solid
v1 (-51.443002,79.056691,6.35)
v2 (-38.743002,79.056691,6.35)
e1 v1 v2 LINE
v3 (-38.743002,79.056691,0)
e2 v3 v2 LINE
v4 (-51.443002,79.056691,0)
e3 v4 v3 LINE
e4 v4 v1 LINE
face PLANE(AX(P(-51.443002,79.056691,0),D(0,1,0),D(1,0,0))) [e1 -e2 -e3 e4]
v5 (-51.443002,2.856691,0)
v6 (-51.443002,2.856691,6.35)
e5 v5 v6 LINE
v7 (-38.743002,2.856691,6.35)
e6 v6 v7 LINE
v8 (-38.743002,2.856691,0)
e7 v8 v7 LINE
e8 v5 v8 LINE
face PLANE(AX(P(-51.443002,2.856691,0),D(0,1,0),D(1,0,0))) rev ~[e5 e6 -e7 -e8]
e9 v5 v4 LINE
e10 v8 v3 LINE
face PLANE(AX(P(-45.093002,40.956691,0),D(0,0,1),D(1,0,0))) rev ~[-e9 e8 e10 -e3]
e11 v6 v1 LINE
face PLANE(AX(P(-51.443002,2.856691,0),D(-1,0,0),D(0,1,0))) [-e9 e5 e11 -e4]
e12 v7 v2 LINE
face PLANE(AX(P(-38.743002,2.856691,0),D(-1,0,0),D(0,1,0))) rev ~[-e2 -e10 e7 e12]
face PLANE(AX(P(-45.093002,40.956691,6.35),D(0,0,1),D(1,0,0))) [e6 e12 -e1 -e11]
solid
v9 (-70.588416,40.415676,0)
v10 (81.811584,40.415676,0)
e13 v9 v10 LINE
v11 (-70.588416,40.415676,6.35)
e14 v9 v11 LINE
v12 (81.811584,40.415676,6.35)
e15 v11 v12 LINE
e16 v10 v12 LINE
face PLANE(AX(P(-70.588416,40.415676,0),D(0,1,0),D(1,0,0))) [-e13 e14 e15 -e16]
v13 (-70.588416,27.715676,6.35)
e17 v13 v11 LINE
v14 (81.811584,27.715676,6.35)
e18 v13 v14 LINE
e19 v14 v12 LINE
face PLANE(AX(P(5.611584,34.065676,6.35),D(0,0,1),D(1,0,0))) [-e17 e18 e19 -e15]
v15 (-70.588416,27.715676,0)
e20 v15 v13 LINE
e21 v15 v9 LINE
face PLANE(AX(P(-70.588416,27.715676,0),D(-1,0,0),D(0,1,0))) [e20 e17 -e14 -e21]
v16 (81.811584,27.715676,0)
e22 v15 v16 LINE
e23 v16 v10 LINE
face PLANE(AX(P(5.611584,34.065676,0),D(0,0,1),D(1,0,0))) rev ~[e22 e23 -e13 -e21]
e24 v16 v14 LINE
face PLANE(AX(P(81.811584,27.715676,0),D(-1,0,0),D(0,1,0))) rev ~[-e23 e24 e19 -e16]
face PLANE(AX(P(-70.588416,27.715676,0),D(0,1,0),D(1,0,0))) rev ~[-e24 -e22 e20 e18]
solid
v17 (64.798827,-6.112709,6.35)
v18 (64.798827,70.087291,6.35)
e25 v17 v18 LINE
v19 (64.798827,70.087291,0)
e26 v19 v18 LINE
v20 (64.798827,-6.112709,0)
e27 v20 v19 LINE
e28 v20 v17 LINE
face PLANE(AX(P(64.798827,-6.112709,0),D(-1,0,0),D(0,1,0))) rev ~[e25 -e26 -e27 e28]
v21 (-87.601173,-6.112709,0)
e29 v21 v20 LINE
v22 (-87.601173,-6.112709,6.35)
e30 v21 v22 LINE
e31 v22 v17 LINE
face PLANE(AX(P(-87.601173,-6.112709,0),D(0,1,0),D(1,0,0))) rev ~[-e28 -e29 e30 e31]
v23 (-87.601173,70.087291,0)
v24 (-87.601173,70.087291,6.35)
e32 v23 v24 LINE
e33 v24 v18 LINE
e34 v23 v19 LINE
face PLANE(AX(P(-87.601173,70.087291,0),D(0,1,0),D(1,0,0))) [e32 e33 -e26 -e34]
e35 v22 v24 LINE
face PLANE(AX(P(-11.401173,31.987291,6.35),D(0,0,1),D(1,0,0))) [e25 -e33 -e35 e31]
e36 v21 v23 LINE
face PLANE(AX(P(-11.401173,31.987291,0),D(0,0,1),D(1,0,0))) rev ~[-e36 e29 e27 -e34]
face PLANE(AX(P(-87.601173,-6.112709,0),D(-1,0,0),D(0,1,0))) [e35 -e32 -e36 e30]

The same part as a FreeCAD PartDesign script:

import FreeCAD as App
import Part
import Sketcher
from FreeCAD import Vector
Q = App.Units.Quantity

doc = App.newDocument("Part")
params = doc.addObject("Spreadsheet::Sheet", "Params")
for row, (alias, value) in enumerate([
    ("sketch1_width", "6 in"),
    ("sketch1_height", "3 in"),
    ("pad1_length", "0.25 in"),
    ("sketch2_width", "6 in"),
    ("sketch2_height", "0.5 in"),
    ("pad2_length", "0.25 in"),
    ("sketch3_height", "3 in"),
    ("sketch3_width", "0.5 in"),
    ("pad3_length", "0.25 in"),
], start=1):
    params.set(f"A{row}", alias)
    params.set(f"B{row}", "=" + value)
    params.setAlias(f"B{row}", alias)

body = doc.addObject("PartDesign::Body", "Body")

# Sketch on XY plane
sketch1 = body.newObject("Sketcher::SketchObject", "Sketch")
sketch1.AttachmentSupport = (doc.getObject("XY_Plane"), [""])
sketch1.MapMode = "FlatFace"
sketch1.addGeometry(Part.LineSegment(Vector(-88, 70, 0), Vector(-88, -6, 0)), False)
sketch1.addGeometry(Part.LineSegment(Vector(-88, -6, 0), Vector(65, -6, 0)), False)
sketch1.addGeometry(Part.LineSegment(Vector(65, -6, 0), Vector(65, 70, 0)), False)
sketch1.addGeometry(Part.LineSegment(Vector(65, 70, 0), Vector(-88, 70, 0)), False)
sketch1.addConstraint(Sketcher.Constraint("Coincident", 0, 2, 1, 1))
sketch1.addConstraint(Sketcher.Constraint("Coincident", 1, 2, 2, 1))
sketch1.addConstraint(Sketcher.Constraint("Coincident", 2, 2, 3, 1))
sketch1.addConstraint(Sketcher.Constraint("Coincident", 3, 2, 0, 1))
sketch1.addConstraint(Sketcher.Constraint("Vertical", 0))
sketch1.addConstraint(Sketcher.Constraint("Horizontal", 1))
sketch1.addConstraint(Sketcher.Constraint("Vertical", 2))
sketch1.addConstraint(Sketcher.Constraint("Horizontal", 3))
sketch1.addConstraint(Sketcher.Constraint("DistanceX", 1, 1, 1, 2, Q("6 in")))
sketch1.addConstraint(Sketcher.Constraint("DistanceY", 0, 2, 0, 1, Q("3 in")))
sketch1.addConstraint(Sketcher.Constraint("DistanceY", 0, 2, -1, 1, Q("6.112709 mm")))
sketch1.addConstraint(Sketcher.Constraint("DistanceX", 0, 2, -1, 1, Q("87.601173 mm")))
sketch1.setExpression("Constraints[8]", "Params.sketch1_width")
sketch1.setExpression("Constraints[9]", "Params.sketch1_height")
pad1 = body.newObject("PartDesign::Pad", "Pad")
pad1.Profile = sketch1
pad1.setExpression("Length", "Params.pad1_length")
body2 = doc.addObject("PartDesign::Body", "Body001")

# Sketch on XY plane
sketch2 = body2.newObject("Sketcher::SketchObject", "Sketch001")
sketch2.AttachmentSupport = (doc.getObject("XY_Plane001"), [""])
sketch2.MapMode = "FlatFace"
sketch2.addGeometry(Part.LineSegment(Vector(-71, 40, 0), Vector(-71, 28, 0)), False)
sketch2.addGeometry(Part.LineSegment(Vector(-71, 28, 0), Vector(82, 28, 0)), False)
sketch2.addGeometry(Part.LineSegment(Vector(82, 28, 0), Vector(82, 40, 0)), False)
sketch2.addGeometry(Part.LineSegment(Vector(82, 40, 0), Vector(-71, 40, 0)), False)
sketch2.addConstraint(Sketcher.Constraint("Coincident", 0, 2, 1, 1))
sketch2.addConstraint(Sketcher.Constraint("Coincident", 1, 2, 2, 1))
sketch2.addConstraint(Sketcher.Constraint("Coincident", 2, 2, 3, 1))
sketch2.addConstraint(Sketcher.Constraint("Coincident", 3, 2, 0, 1))
sketch2.addConstraint(Sketcher.Constraint("Vertical", 0))
sketch2.addConstraint(Sketcher.Constraint("Horizontal", 1))
sketch2.addConstraint(Sketcher.Constraint("Vertical", 2))
sketch2.addConstraint(Sketcher.Constraint("Horizontal", 3))
sketch2.addConstraint(Sketcher.Constraint("DistanceX", 1, 1, 1, 2, Q("6 in")))
sketch2.addConstraint(Sketcher.Constraint("DistanceY", 0, 2, 0, 1, Q("0.5 in")))
sketch2.addConstraint(Sketcher.Constraint("DistanceX", 0, 2, -1, 1, Q("70.588416 mm")))
sketch2.addConstraint(Sketcher.Constraint("DistanceY", -1, 1, 0, 2, Q("27.715676 mm")))
sketch2.setExpression("Constraints[8]", "Params.sketch2_width")
sketch2.setExpression("Constraints[9]", "Params.sketch2_height")
pad2 = body2.newObject("PartDesign::Pad", "Pad001")
pad2.Profile = sketch2
pad2.setExpression("Length", "Params.pad2_length")
body3 = doc.addObject("PartDesign::Body", "Body002")

# Sketch on XY plane
sketch3 = body3.newObject("Sketcher::SketchObject", "Sketch002")
sketch3.AttachmentSupport = (doc.getObject("XY_Plane002"), [""])
sketch3.MapMode = "FlatFace"
sketch3.addGeometry(Part.LineSegment(Vector(-51, 79, 0), Vector(-51, 3, 0)), False)
sketch3.addGeometry(Part.LineSegment(Vector(-51, 3, 0), Vector(-39, 3, 0)), False)
sketch3.addGeometry(Part.LineSegment(Vector(-39, 3, 0), Vector(-39, 79, 0)), False)
sketch3.addGeometry(Part.LineSegment(Vector(-39, 79, 0), Vector(-51, 79, 0)), False)
sketch3.addConstraint(Sketcher.Constraint("Coincident", 0, 2, 1, 1))
sketch3.addConstraint(Sketcher.Constraint("Coincident", 1, 2, 2, 1))
sketch3.addConstraint(Sketcher.Constraint("Coincident", 2, 2, 3, 1))
sketch3.addConstraint(Sketcher.Constraint("Coincident", 3, 2, 0, 1))
sketch3.addConstraint(Sketcher.Constraint("Vertical", 0))
sketch3.addConstraint(Sketcher.Constraint("Horizontal", 1))
sketch3.addConstraint(Sketcher.Constraint("Vertical", 2))
sketch3.addConstraint(Sketcher.Constraint("Horizontal", 3))
sketch3.addConstraint(Sketcher.Constraint("DistanceY", 0, 2, 0, 1, Q("3 in")))
sketch3.addConstraint(Sketcher.Constraint("DistanceX", 1, 1, 1, 2, Q("0.5 in")))
sketch3.addConstraint(Sketcher.Constraint("DistanceX", 1, 2, -1, 1, Q("38.743002 mm")))
sketch3.addConstraint(Sketcher.Constraint("DistanceY", -1, 1, 0, 2, Q("2.856691 mm")))
sketch3.setExpression("Constraints[8]", "Params.sketch3_height")
sketch3.setExpression("Constraints[9]", "Params.sketch3_width")
pad3 = body3.newObject("PartDesign::Pad", "Pad002")
pad3.Profile = sketch3
pad3.setExpression("Length", "Params.pad3_length")

doc.recompute()
